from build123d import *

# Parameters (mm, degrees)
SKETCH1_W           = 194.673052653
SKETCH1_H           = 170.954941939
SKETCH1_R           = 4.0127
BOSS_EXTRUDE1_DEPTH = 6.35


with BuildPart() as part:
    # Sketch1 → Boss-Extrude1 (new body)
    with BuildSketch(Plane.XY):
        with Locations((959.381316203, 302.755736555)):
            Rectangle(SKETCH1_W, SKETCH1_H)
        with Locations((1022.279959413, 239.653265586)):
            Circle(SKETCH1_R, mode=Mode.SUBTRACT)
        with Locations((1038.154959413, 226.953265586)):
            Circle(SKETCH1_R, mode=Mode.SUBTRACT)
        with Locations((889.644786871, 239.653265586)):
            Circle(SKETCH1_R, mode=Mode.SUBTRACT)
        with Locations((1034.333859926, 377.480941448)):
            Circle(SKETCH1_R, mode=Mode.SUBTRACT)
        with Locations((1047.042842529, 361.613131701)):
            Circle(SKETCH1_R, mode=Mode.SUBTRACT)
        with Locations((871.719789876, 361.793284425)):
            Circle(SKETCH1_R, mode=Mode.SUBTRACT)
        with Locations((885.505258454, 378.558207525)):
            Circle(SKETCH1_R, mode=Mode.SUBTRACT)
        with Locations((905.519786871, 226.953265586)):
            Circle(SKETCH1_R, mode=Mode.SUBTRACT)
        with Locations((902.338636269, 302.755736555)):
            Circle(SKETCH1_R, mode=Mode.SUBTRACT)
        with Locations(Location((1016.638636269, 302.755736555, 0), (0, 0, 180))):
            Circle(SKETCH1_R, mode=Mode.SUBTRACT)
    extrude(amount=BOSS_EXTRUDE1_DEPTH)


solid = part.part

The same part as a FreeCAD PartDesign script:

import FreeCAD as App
import Part
import Sketcher
from FreeCAD import Vector
Q = App.Units.Quantity


def add_polygon(sketch, points):
    """Adds a closed chain of lines whose ends are joined by coincident constraints."""
    first, n = sketch.GeometryCount, len(points)
    for a, b in zip(points, points[1:] + points[:1]):
        sketch.addGeometry(Part.LineSegment(App.Vector(*a, 0), App.Vector(*b, 0)), False)
    for i in range(n):
        sketch.addConstraint(Sketcher.Constraint("Coincident", first + i, 2, first + (i + 1) % n, 1))

doc = App.newDocument("Part")
body = doc.addObject("PartDesign::Body", "Body")

# Sketch on XY plane
sketch1 = doc.addObject("Sketcher::SketchObject", "Sketch")
body.addObject(sketch1)
sketch1.AttachmentSupport = (doc.XY_Plane, [""])
sketch1.MapMode = "FlatFace"
add_polygon(sketch1, [(862.04479, 388.233208), (862.04479, 217.278266), (1056.717843, 217.278266), (1056.717843, 388.233208)])  # lines 0-3
sketch1.addGeometry(Part.Circle(Vector(889.644787, 239.653266, 0), Vector(0, 0, 1), 4.0127), False)  # 4
sketch1.addGeometry(Part.Circle(Vector(905.519787, 226.953266, 0), Vector(0, 0, 1), 4.0127), False)  # 5
sketch1.addGeometry(Part.Circle(Vector(902.338636, 302.755737, 0), Vector(0, 0, 1), 4.0127), False)  # 6
sketch1.addGeometry(Part.Circle(Vector(1022.279959, 239.653266, 0), Vector(0, 0, 1), 4.0127), False)  # 7
sketch1.addGeometry(Part.Circle(Vector(1038.154959, 226.953266, 0), Vector(0, 0, 1), 4.0127), False)  # 8
sketch1.addGeometry(Part.Circle(Vector(1016.638636, 302.755737, 0), Vector(0, 0, 1), 4.0127), False)  # 9
sketch1.addGeometry(Part.Circle(Vector(871.71979, 361.793284, 0), Vector(0, 0, 1), 4.0127), False)  # 10
sketch1.addGeometry(Part.Circle(Vector(885.505258, 378.558208, 0), Vector(0, 0, 1), 4.0127), False)  # 11
sketch1.addGeometry(Part.Circle(Vector(1047.042843, 361.613132, 0), Vector(0, 0, 1), 4.0127), False)  # 12
sketch1.addGeometry(Part.Circle(Vector(1034.33386, 377.480941, 0), Vector(0, 0, 1), 4.0127), False)  # 13
sketch1.addConstraint([
    Sketcher.Constraint("Vertical", 0),
    Sketcher.Constraint("Horizontal", 1),
    Sketcher.Constraint("Vertical", 2),
    Sketcher.Constraint("Horizontal", 3),
    Sketcher.Constraint("Equal", 4, 5),
    Sketcher.Constraint("Equal", 5, 6),
    Sketcher.Constraint("Equal", 6, 7),
    Sketcher.Constraint("Equal", 7, 8),
    Sketcher.Constraint("Equal", 8, 9),
    Sketcher.Constraint("Equal", 9, 10),
    Sketcher.Constraint("Equal", 10, 11),
    Sketcher.Constraint("Equal", 11, 12),
    Sketcher.Constraint("Equal", 12, 13),
    Sketcher.Constraint("Horizontal", 4, 3, 7, 3),
    Sketcher.Constraint("Horizontal", 5, 3, 8, 3),
    Sketcher.Constraint("Horizontal", 6, 3, 9, 3),
    Sketcher.Constraint("DistanceY", 5, 3, 4, 3, Q("0.5 in")),
    Sketcher.Constraint("DistanceX", 6, 3, 9, 3, Q("4.5 in")),
    Sketcher.Constraint("Diameter", 4, Q("8.0254 mm")),
    Sketcher.Constraint("DistanceX", 4, 3, 5, 3, Q("0.625 in")),
    Sketcher.Constraint("DistanceX", 7, 3, 8, 3, Q("0.625 in")),
    Sketcher.Constraint("DistanceY", 0, 2, 0, 1, Q("170.954942 mm")),
    Sketcher.Constraint("DistanceX", 7, 3, 13, 3, Q("12.053901 mm")),
    Sketcher.Constraint("DistanceX", 11, 3, 13, 3, Q("148.828601 mm")),
    Sketcher.Constraint("DistanceY", 0, 2, 4, 3, Q("22.375 mm")),
    Sketcher.Constraint("DistanceX", 0, 2, 10, 3, Q("9.675 mm")),
    Sketcher.Constraint("DistanceX", 12, 3, 1, 2, Q("9.675 mm")),
    Sketcher.Constraint("DistanceY", 11, 3, 3, 2, Q("9.675 mm")),
    Sketcher.Constraint("DistanceX", 1, 1, 1, 2, Q("194.673053 mm")),
    Sketcher.Constraint("DistanceX", -1, 1, 7, 3, Q("1022.279959 mm")),
    Sketcher.Constraint("DistanceX", -1, 1, 10, 3, Q("871.71979 mm")),
    Sketcher.Constraint("DistanceY", -1, 1, 12, 3, Q("361.613132 mm")),
    Sketcher.Constraint("DistanceY", -1, 1, 13, 3, Q("377.480941 mm")),
    Sketcher.Constraint("DistanceX", 4, 3, 6, 3, Q("12.693849 mm")),
    Sketcher.Constraint("DistanceY", 4, 3, 6, 3, Q("63.102471 mm")),
    Sketcher.Constraint("DistanceY", 4, 3, 10, 3, Q("122.140019 mm")),
    Sketcher.Constraint("DistanceX", 11, 3, 4, 3, Q("4.139528 mm")),
    Sketcher.Constraint("DistanceY", -1, 1, 4, 3, Q("239.653266 mm")),
])
pad1 = doc.addObject("PartDesign::Pad", "Pad")
body.addObject(pad1)
pad1.Profile = sketch1
pad1.Length = Q("0.25 in")

doc.recompute()
